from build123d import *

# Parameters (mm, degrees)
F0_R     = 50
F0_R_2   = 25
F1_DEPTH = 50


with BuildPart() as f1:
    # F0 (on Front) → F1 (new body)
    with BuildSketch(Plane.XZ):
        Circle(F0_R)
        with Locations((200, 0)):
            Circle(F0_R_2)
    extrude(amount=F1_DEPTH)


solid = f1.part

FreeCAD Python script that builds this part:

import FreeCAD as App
import Part
import Sketcher
Q = App.Units.Quantity

doc = App.newDocument("Part")
body = doc.addObject("PartDesign::Body", "Body")
body.AllowCompound = True

# Sketch on XZ plane
sketch1 = body.newObject("Sketcher::SketchObject", "Sketch")
sketch1.AttachmentSupport = (doc.getObject("XZ_Plane"), [""])
sketch1.MapMode = "FlatFace"
sketch1.addGeometry([
    Part.Circle(App.Vector(0, 0, 0), App.Vector(0, 0, 1), 50),
    Part.Circle(App.Vector(200, 0, 0), App.Vector(0, 0, 1), 25),
], False)
sketch1.addConstraint([
    Sketcher.Constraint("Coincident", 0, 3, -1, 1),
    Sketcher.Constraint("PointOnObject", 1, 3, -1),
    Sketcher.Constraint("Diameter", 0, Q("100 mm")),
    Sketcher.Constraint("Diameter", 1, Q("50 mm")),
    Sketcher.Constraint("DistanceX", -1, 1, 1, 3, Q("200 mm")),
])
pad1 = body.newObject("PartDesign::Pad", "Pad")
pad1.Profile = sketch1
pad1.Length = 50

doc.recompute()
